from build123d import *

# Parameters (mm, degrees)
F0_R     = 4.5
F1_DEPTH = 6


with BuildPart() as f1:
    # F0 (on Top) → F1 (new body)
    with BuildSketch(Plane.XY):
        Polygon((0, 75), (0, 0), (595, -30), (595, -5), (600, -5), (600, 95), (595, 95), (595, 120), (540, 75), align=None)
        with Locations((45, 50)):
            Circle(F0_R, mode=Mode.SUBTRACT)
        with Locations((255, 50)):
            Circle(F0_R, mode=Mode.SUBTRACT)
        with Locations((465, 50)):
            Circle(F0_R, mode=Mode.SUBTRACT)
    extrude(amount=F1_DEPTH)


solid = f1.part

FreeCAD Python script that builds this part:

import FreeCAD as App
import Part
import Sketcher
Q = App.Units.Quantity


def add_polygon(sketch, points):
    """Adds a closed chain of lines whose ends are joined by coincident constraints."""
    first, n = sketch.GeometryCount, len(points)
    for a, b in zip(points, points[1:] + points[:1]):
        sketch.addGeometry(Part.LineSegment(App.Vector(*a, 0), App.Vector(*b, 0)), False)
    for i in range(n):
        sketch.addConstraint(Sketcher.Constraint("Coincident", first + i, 2, first + (i + 1) % n, 1))

doc = App.newDocument("Part")
params = doc.addObject("Spreadsheet::Sheet", "Params")
for row, (alias, value) in enumerate([
    ("sketch1_diameter", "9 mm"),
    ("sketch1_width", "5 mm"),
    ("sketch1_width2", "540 mm"),
    ("sketch1_height", "75 mm"),
    ("sketch1_height2", "25 mm"),
    ("pad1_length", "6 mm"),
], start=1):
    params.set(f"A{row}", alias)
    params.set(f"B{row}", "=" + value)
    params.setAlias(f"B{row}", alias)

body = doc.addObject("PartDesign::Body", "Body")

sketch1 = doc.addObject("Sketcher::SketchObject", "Sketch")
body.addObject(sketch1)
sketch1.AttachmentSupport = (doc.XY_Plane, [""])
sketch1.MapMode = "FlatFace"
add_polygon(sketch1, [(0, 75), (0, 0), (595, -30), (595, -5), (600, -5), (600, 95), (595, 95), (595, 120), (540, 75)])
sketch1.addGeometry(Part.Circle(App.Vector(45, 50, 0), App.Vector(0, 0, 1), 4.5), False)
sketch1.addGeometry(Part.Circle(App.Vector(255, 50, 0), App.Vector(0, 0, 1), 4.5), False)
sketch1.addGeometry(Part.Circle(App.Vector(465, 50, 0), App.Vector(0, 0, 1), 4.5), False)
sketch1.addConstraint(Sketcher.Constraint("Vertical", 0))
sketch1.addConstraint(Sketcher.Constraint("Vertical", 2))
sketch1.addConstraint(Sketcher.Constraint("Horizontal", 3))
sketch1.addConstraint(Sketcher.Constraint("Vertical", 4))
sketch1.addConstraint(Sketcher.Constraint("Horizontal", 5))
sketch1.addConstraint(Sketcher.Constraint("Vertical", 6))
sketch1.addConstraint(Sketcher.Constraint("Horizontal", 8))
sketch1.addConstraint(Sketcher.Constraint("Coincident", 0, 2, -1, 1))
sketch1.addConstraint(Sketcher.Constraint("Equal", 9, 10))
sketch1.addConstraint(Sketcher.Constraint("Equal", 10, 11))
sketch1.addConstraint(Sketcher.Constraint("Horizontal", 9, 3, 10, 3))
sketch1.addConstraint(Sketcher.Constraint("Horizontal", 10, 3, 11, 3))
sketch1.addConstraint(Sketcher.Constraint("Vertical", 2, 2, 5, 2))
sketch1.addConstraint(Sketcher.Constraint("Equal", 2, 6))
sketch1.addConstraint(Sketcher.Constraint("Diameter", 9, Q("9 mm")))
sketch1.addConstraint(Sketcher.Constraint("DistanceX", 3, 1, 3, 2, Q("5 mm")))
sketch1.addConstraint(Sketcher.Constraint("DistanceX", 8, 2, 8, 1, Q("540 mm")))
sketch1.addConstraint(Sketcher.Constraint("DistanceY", 0, 2, 0, 1, Q("75 mm")))
sketch1.addConstraint(Sketcher.Constraint("DistanceY", 2, 1, 2, 2, Q("25 mm")))
sketch1.addConstraint(Sketcher.Constraint("DistanceY", 4, 1, 4, 2, Q("100 mm")))
sketch1.addConstraint(Sketcher.Constraint("DistanceX", -1, 1, 9, 3, Q("45 mm")))
sketch1.addConstraint(Sketcher.Constraint("DistanceY", -1, 1, 9, 3, Q("50 mm")))
sketch1.addConstraint(Sketcher.Constraint("DistanceX", -1, 1, 10, 3, Q("255 mm")))
sketch1.addConstraint(Sketcher.Constraint("DistanceX", -1, 1, 11, 3, Q("465 mm")))
sketch1.addConstraint(Sketcher.Constraint("DistanceX", -1, 1, 1, 2, Q("595 mm")))
sketch1.addConstraint(Sketcher.Constraint("DistanceY", 1, 2, -1, 1, Q("30 mm")))
sketch1.setExpression("Constraints[23]", "Params.sketch1_diameter")
sketch1.setExpression("Constraints[24]", "Params.sketch1_width")
sketch1.setExpression("Constraints[25]", "Params.sketch1_width2")
sketch1.setExpression("Constraints[26]", "Params.sketch1_height")
sketch1.setExpression("Constraints[27]", "Params.sketch1_height2")
pad1 = doc.addObject("PartDesign::Pad", "Pad")
body.addObject(pad1)
pad1.Profile = sketch1
pad1.setExpression("Length", "Params.pad1_length")

doc.recompute()
